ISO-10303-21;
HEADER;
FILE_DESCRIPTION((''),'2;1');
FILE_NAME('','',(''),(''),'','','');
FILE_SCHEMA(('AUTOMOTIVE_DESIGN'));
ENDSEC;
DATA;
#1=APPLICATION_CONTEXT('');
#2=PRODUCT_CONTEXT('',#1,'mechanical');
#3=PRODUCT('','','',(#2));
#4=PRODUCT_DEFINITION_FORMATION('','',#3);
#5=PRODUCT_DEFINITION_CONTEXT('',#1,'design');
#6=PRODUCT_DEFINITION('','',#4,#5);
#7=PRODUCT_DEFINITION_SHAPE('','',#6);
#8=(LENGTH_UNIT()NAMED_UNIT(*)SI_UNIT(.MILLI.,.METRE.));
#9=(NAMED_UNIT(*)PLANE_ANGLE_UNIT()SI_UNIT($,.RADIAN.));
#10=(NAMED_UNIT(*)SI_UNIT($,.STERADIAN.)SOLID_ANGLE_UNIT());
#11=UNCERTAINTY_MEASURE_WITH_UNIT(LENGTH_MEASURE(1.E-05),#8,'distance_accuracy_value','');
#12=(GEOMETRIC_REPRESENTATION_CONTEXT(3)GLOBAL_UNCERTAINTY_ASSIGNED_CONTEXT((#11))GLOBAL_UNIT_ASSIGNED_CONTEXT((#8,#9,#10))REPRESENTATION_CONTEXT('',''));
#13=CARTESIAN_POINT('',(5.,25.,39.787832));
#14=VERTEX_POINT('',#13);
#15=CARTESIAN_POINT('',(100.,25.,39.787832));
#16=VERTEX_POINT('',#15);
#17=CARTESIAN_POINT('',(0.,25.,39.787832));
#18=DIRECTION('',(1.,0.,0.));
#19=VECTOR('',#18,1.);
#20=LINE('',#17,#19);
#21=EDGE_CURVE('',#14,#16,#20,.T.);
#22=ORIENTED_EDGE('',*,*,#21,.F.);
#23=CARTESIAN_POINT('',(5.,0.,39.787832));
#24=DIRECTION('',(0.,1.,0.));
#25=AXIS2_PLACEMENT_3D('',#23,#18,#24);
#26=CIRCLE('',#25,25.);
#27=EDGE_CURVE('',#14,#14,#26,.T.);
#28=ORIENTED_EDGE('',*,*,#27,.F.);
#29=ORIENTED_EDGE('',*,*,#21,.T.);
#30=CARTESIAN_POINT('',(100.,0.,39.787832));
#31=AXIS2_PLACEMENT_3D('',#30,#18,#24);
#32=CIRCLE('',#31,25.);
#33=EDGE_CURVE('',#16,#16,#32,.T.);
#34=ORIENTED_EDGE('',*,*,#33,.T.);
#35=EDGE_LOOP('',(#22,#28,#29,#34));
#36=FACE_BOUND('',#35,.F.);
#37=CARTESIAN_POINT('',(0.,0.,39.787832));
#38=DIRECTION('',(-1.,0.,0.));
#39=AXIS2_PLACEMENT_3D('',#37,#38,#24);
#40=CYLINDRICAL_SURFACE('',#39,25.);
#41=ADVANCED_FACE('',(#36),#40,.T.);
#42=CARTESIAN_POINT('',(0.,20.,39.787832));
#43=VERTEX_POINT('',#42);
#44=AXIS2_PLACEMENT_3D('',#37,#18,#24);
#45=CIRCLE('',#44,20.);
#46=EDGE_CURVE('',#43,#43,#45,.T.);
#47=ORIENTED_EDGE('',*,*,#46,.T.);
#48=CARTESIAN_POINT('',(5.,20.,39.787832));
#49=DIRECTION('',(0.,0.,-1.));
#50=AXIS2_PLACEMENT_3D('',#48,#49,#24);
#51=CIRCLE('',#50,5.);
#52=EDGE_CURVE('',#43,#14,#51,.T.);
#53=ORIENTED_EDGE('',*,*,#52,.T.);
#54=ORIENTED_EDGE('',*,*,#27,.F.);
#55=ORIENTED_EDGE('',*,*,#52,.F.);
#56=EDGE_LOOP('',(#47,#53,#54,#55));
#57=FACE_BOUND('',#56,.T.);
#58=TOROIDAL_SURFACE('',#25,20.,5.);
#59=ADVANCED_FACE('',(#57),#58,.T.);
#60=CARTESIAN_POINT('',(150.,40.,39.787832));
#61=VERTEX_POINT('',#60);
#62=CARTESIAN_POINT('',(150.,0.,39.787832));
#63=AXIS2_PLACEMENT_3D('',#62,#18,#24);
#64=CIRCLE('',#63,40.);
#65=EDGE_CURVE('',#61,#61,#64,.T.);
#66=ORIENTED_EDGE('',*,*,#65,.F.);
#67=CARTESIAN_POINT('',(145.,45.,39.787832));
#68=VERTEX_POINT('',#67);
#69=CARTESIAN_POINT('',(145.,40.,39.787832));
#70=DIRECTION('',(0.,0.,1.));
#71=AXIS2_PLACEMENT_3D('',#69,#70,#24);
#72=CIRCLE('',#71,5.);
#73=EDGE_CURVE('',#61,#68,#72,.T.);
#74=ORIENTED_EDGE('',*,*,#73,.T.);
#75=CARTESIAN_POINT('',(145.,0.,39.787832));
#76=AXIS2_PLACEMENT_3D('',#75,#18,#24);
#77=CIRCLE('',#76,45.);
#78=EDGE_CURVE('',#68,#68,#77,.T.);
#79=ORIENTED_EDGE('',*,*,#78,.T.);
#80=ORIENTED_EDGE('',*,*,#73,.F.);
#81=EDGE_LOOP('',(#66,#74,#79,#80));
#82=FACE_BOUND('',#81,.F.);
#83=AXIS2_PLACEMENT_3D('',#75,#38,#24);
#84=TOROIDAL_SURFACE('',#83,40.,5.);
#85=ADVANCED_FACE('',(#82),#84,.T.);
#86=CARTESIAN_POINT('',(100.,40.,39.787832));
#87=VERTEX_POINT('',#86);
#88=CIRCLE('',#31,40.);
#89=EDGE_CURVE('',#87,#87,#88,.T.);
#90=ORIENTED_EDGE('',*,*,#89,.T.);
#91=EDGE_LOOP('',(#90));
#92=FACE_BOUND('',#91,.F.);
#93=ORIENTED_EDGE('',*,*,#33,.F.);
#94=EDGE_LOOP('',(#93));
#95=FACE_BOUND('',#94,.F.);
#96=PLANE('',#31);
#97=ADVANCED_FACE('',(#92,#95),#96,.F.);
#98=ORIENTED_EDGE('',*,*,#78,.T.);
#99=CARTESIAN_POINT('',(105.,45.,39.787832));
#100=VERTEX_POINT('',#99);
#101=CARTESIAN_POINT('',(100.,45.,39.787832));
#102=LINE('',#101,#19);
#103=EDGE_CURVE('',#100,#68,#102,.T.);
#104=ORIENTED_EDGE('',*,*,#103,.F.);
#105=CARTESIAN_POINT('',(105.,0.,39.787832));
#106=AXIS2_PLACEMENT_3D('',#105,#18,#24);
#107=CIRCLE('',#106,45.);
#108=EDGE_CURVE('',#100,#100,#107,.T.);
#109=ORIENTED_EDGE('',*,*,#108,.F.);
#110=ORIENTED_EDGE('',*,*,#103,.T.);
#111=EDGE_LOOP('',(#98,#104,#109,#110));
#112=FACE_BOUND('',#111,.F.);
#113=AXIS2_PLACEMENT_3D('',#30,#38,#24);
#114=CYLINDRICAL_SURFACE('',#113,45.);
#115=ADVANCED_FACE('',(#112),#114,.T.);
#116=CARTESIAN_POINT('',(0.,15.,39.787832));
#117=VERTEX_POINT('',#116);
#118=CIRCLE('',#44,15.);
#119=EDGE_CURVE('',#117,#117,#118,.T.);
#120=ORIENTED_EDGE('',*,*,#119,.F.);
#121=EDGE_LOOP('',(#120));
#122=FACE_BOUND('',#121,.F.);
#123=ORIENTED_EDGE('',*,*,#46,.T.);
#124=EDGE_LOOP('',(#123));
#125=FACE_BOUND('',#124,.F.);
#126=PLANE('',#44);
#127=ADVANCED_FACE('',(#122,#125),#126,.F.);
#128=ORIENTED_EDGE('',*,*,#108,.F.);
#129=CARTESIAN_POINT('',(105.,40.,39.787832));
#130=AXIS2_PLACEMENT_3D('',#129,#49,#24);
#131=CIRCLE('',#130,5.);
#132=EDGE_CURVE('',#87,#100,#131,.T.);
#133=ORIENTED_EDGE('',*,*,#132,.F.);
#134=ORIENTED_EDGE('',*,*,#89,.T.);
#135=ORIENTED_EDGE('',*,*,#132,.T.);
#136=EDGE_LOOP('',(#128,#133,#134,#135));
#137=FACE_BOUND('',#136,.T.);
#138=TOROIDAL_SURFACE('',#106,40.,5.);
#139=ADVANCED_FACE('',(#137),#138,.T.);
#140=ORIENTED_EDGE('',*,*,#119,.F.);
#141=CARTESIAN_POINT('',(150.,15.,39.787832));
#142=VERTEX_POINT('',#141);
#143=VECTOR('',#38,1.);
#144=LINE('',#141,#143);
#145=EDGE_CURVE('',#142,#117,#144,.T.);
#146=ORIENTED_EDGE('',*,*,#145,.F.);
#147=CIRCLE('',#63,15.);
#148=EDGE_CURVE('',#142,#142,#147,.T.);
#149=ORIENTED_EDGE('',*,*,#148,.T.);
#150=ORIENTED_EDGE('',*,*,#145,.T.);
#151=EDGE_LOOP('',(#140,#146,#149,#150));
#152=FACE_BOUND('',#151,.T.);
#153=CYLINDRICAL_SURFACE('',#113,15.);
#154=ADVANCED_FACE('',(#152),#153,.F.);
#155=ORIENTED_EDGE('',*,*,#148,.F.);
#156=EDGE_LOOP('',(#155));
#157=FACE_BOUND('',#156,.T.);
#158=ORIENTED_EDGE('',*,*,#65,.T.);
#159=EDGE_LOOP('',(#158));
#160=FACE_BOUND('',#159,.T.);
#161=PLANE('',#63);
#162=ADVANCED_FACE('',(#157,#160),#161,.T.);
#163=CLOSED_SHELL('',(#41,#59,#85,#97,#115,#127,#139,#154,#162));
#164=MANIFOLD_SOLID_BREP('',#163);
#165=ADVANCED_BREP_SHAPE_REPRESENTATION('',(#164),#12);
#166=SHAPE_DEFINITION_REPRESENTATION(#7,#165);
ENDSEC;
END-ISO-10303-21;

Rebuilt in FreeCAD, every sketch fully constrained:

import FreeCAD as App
import Part
import Sketcher

V = App.Vector


def edges_at(feature, points):
    """Names of the edges that pass closest to the given points."""
    edges = feature.Shape.Edges
    near = lambda p: min(range(len(edges)), key=lambda i: edges[i].distToShape(Part.Vertex(*p))[0])
    return sorted({f"Edge{near(p) + 1}" for p in points})

doc = App.newDocument("Part")
body = doc.addObject("PartDesign::Body", "Body")

# Sketch on YZ plane
sketch1 = body.newObject("Sketcher::SketchObject", "Sketch")
sketch1.AttachmentSupport = (doc.getObject("YZ_Plane"), [""])
sketch1.MapMode = "FlatFace"
sketch1.addGeometry([
    Part.Circle(V(0, 40, 0), V(0, 0, 1), 25),
    Part.Circle(V(0, 40, 0), V(0, 0, 1), 15),
], False)
sketch1.addConstraint([
    Sketcher.Constraint("Coincident", 1, 3, 0, 3),
    Sketcher.Constraint("PointOnObject", 0, 3, -2),
    Sketcher.Constraint("Diameter", 0, 50.0),
    Sketcher.Constraint("Diameter", 1, 30.0),
    Sketcher.Constraint("DistanceY", -1, 1, 0, 3, 39.787832),
])
pad1 = body.newObject("PartDesign::Pad", "Pad")
pad1.Profile = sketch1
pad1.Length = 100

# Sketch on YZ plane
sketch2 = body.newObject("Sketcher::SketchObject", "Sketch001")
sketch2.AttachmentSupport = (doc.getObject("YZ_Plane"), [""])
sketch2.MapMode = "FlatFace"
sketch2.AttachmentOffset = App.Placement(V(0, 0, 100), App.Rotation())
sketch2.addGeometry([
    Part.Circle(V(0, 40, 0), V(0, 0, 1), 45),
    Part.Circle(V(0, 40, 0), V(0, 0, 1), 15),
], False)
sketch2.addConstraint([
    Sketcher.Constraint("Coincident", 1, 3, 0, 3),
    Sketcher.Constraint("PointOnObject", 0, 3, -2),
    Sketcher.Constraint("Diameter", 0, 90.0),
    Sketcher.Constraint("Diameter", 1, 30.0),
    Sketcher.Constraint("DistanceY", -1, 1, 0, 3, 39.787832),
])
pad2 = body.newObject("PartDesign::Pad", "Pad001")
pad2.Profile = sketch2
pad2.Length = 50
doc.recompute()

fillet = body.newObject("PartDesign::Fillet", "Fillet")
fillet.Base = (pad2, edges_at(pad2, [(100, -45, 39.788), (0, -25, 39.788)]))
fillet.Radius = 5
doc.recompute()

fillet2 = body.newObject("PartDesign::Fillet", "Fillet001")
fillet2.Base = (fillet, edges_at(fillet, [(150, -45, 39.788)]))
fillet2.Radius = 5

doc.recompute()
